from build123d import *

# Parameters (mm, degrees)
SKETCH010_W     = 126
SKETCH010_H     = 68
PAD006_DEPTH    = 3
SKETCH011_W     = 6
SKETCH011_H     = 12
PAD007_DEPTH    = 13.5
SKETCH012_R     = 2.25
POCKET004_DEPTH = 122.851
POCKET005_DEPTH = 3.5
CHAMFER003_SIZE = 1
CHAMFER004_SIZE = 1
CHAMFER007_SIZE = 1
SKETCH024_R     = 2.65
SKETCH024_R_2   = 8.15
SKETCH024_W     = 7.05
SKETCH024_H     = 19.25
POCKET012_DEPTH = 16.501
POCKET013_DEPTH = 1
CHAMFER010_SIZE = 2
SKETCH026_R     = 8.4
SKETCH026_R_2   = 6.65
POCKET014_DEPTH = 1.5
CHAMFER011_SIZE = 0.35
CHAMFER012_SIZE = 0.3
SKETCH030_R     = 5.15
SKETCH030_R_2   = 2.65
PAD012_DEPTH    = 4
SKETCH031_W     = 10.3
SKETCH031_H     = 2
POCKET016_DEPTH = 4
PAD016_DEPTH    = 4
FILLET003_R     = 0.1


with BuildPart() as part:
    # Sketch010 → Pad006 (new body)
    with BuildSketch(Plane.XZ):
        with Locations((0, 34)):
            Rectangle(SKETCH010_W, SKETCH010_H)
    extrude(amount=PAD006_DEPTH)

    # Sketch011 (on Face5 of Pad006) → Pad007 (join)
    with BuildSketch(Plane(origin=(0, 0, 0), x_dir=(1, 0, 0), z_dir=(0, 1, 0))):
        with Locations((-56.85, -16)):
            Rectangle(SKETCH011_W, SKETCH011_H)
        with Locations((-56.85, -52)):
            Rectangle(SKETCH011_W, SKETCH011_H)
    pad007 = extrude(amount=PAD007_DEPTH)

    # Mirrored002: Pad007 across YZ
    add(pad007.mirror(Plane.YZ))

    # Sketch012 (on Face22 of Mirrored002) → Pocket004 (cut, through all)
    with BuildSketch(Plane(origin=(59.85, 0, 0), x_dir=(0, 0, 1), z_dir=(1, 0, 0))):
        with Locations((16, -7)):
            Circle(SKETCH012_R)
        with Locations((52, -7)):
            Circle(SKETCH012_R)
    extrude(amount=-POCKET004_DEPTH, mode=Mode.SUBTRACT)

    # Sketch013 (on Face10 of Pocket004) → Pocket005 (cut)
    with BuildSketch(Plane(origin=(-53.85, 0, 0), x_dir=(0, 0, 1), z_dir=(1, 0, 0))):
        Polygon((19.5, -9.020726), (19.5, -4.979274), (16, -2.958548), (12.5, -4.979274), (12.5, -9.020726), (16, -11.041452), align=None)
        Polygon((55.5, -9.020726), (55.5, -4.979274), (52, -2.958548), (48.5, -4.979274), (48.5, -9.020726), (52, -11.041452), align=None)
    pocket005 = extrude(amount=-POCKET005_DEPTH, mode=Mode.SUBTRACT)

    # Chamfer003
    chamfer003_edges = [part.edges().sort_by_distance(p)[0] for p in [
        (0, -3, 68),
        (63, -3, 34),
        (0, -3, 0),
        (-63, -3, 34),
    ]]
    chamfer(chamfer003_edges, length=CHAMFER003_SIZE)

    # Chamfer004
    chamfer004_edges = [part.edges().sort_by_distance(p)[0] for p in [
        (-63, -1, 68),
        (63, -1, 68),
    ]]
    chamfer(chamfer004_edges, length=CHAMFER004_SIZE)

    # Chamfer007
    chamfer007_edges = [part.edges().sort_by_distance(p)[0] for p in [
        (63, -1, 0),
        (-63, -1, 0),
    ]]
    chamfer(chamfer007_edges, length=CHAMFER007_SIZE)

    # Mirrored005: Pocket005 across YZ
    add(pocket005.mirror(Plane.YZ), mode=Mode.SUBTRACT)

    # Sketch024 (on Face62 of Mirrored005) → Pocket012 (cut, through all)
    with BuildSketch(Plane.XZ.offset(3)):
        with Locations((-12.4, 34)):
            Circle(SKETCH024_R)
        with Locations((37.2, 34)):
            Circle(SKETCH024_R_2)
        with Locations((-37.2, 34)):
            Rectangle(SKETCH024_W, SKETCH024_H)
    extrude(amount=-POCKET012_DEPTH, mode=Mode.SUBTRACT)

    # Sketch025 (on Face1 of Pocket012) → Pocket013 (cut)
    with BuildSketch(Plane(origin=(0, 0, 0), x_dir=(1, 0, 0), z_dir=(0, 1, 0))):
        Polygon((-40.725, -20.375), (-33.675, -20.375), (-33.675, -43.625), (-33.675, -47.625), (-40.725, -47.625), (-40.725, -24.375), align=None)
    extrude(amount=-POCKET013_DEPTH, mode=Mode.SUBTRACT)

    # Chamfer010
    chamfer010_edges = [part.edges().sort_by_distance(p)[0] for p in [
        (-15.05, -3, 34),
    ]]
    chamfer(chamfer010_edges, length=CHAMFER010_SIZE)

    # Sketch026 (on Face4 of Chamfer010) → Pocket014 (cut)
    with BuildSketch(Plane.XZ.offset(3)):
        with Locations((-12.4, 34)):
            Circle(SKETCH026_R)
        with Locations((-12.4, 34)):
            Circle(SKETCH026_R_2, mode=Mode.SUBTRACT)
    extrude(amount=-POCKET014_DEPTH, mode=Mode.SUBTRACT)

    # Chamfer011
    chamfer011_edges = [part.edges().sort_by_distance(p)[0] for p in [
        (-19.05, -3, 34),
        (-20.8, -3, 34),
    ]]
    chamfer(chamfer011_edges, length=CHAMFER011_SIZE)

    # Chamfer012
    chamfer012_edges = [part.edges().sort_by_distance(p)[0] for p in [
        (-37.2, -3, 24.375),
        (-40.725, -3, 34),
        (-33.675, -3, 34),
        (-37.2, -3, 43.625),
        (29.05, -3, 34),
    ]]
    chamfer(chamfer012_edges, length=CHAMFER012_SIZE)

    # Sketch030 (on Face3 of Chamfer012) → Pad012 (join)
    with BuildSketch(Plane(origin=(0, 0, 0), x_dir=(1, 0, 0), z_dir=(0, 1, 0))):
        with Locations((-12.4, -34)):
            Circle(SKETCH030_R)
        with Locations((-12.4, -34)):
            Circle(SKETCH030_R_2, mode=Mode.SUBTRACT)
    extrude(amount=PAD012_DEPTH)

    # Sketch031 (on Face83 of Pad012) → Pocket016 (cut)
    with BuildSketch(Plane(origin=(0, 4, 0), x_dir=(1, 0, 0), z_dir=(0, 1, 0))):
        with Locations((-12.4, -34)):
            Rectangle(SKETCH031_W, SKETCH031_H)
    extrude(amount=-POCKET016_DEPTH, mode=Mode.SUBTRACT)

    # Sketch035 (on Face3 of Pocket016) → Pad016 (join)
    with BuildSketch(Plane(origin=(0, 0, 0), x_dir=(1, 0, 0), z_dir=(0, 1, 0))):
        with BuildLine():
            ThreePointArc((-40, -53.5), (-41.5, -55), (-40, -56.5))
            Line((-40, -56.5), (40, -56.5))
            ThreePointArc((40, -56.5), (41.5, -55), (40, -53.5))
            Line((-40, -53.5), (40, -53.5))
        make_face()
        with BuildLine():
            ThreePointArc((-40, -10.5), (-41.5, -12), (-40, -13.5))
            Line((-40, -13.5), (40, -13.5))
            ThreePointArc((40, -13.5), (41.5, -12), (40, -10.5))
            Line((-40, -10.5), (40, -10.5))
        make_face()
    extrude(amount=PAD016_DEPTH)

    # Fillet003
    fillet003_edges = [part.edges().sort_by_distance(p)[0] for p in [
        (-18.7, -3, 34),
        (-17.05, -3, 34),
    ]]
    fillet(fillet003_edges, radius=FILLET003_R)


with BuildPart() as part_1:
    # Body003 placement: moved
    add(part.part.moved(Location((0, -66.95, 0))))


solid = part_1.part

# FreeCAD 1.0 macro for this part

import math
import FreeCAD as App
import Part
import Sketcher

V = App.Vector
Q = App.Units.Quantity


def edges_at(feature, points):
    """Names of the edges that pass closest to the given points."""
    edges = feature.Shape.Edges
    near = lambda p: min(range(len(edges)), key=lambda i: edges[i].distToShape(Part.Vertex(*p))[0])
    return sorted({f"Edge{near(p) + 1}" for p in points})

doc = App.newDocument("Part")
body = doc.addObject("PartDesign::Body", "Body")

# Sketch on XZ plane
sketch1 = doc.addObject("Sketcher::SketchObject", "Sketch")
body.addObject(sketch1)
sketch1.AttachmentSupport = (doc.XZ_Plane, [""])
sketch1.MapMode = "FlatFace"
sketch1.addGeometry(Part.LineSegment(V(-63, 68, 0), V(-63, 0, 0)), False)
sketch1.addGeometry(Part.LineSegment(V(-63, 0, 0), V(63, 0, 0)), False)
sketch1.addGeometry(Part.LineSegment(V(63, 0, 0), V(63, 68, 0)), False)
sketch1.addGeometry(Part.LineSegment(V(63, 68, 0), V(-63, 68, 0)), False)
sketch1.addConstraint(Sketcher.Constraint("Coincident", 0, 2, 1, 1))
sketch1.addConstraint(Sketcher.Constraint("Coincident", 1, 2, 2, 1))
sketch1.addConstraint(Sketcher.Constraint("Coincident", 2, 2, 3, 1))
sketch1.addConstraint(Sketcher.Constraint("Coincident", 3, 2, 0, 1))
sketch1.addConstraint(Sketcher.Constraint("Vertical", 0))
sketch1.addConstraint(Sketcher.Constraint("Horizontal", 1))
sketch1.addConstraint(Sketcher.Constraint("Vertical", 2))
sketch1.addConstraint(Sketcher.Constraint("Horizontal", 3))
sketch1.addConstraint(Sketcher.Constraint("Symmetric", 0, 2, 1, 2, -1, 1))
sketch1.addConstraint(Sketcher.Constraint("DistanceX", 1, 1, 1, 2, 126.0))
sketch1.addConstraint(Sketcher.Constraint("DistanceY", 0, 2, 0, 1, 68.0))
pad1 = doc.addObject("PartDesign::Pad", "Pad")
body.addObject(pad1)
pad1.Profile = sketch1
pad1.Length = 3

# Sketch on XZ plane
sketch2 = doc.addObject("Sketcher::SketchObject", "Sketch001")
body.addObject(sketch2)
sketch2.AttachmentSupport = (doc.XZ_Plane, [""])
sketch2.MapMode = "FlatFace"
sketch2.addGeometry(Part.LineSegment(V(-60, 10, 0), V(-60, 22, 0)), False)
sketch2.addGeometry(Part.LineSegment(V(-60, 22, 0), V(-54, 22, 0)), False)
sketch2.addGeometry(Part.LineSegment(V(-54, 22, 0), V(-54, 10, 0)), False)
sketch2.addGeometry(Part.LineSegment(V(-54, 10, 0), V(-60, 10, 0)), False)
sketch2.addGeometry(Part.LineSegment(V(-60, 46, 0), V(-60, 58, 0)), False)
sketch2.addGeometry(Part.LineSegment(V(-60, 58, 0), V(-54, 58, 0)), False)
sketch2.addGeometry(Part.LineSegment(V(-54, 58, 0), V(-54, 46, 0)), False)
sketch2.addGeometry(Part.LineSegment(V(-54, 46, 0), V(-60, 46, 0)), False)
sketch2.addConstraint(Sketcher.Constraint("Coincident", 0, 2, 1, 1))
sketch2.addConstraint(Sketcher.Constraint("Coincident", 1, 2, 2, 1))
sketch2.addConstraint(Sketcher.Constraint("Coincident", 2, 2, 3, 1))
sketch2.addConstraint(Sketcher.Constraint("Coincident", 3, 2, 0, 1))
sketch2.addConstraint(Sketcher.Constraint("Coincident", 4, 2, 5, 1))
sketch2.addConstraint(Sketcher.Constraint("Coincident", 5, 2, 6, 1))
sketch2.addConstraint(Sketcher.Constraint("Coincident", 6, 2, 7, 1))
sketch2.addConstraint(Sketcher.Constraint("Coincident", 7, 2, 4, 1))
sketch2.addConstraint(Sketcher.Constraint("Vertical", 0))
sketch2.addConstraint(Sketcher.Constraint("Horizontal", 1))
sketch2.addConstraint(Sketcher.Constraint("Vertical", 2))
sketch2.addConstraint(Sketcher.Constraint("Horizontal", 3))
sketch2.addConstraint(Sketcher.Constraint("Vertical", 4))
sketch2.addConstraint(Sketcher.Constraint("Horizontal", 5))
sketch2.addConstraint(Sketcher.Constraint("Vertical", 6))
sketch2.addConstraint(Sketcher.Constraint("Horizontal", 7))
sketch2.addConstraint(Sketcher.Constraint("Vertical", 3, 2, 4, 2))
sketch2.addConstraint(Sketcher.Constraint("Vertical", 2, 2, 5, 2))
sketch2.addConstraint(Sketcher.Constraint("Equal", 2, 4))
sketch2.addConstraint(Sketcher.Constraint("DistanceX", 1, 1, 1, 2, 6.0))
sketch2.addConstraint(Sketcher.Constraint("DistanceY", 0, 1, 0, 2, 12.0))
sketch2.addConstraint(Sketcher.Constraint("DistanceY", -1, 1, 0, 2, 22.0))
sketch2.addConstraint(Sketcher.Constraint("DistanceY", -1, 1, 4, 2, 58.0))
sketch2.addConstraint(Sketcher.Constraint("DistanceX", 0, 2, -1, 1, 59.85))
pad2 = doc.addObject("PartDesign::Pad", "Pad001")
body.addObject(pad2)
pad2.Profile = sketch2
pad2.Length = 13.5
pad2.Reversed = True
doc.recompute()

mirrored = doc.addObject("PartDesign::Mirrored", "Mirrored")
body.addObject(mirrored)
mirrored.Originals = [pad2]
mirrored.MirrorPlane = (doc.YZ_Plane, [""])
body.Tip = mirrored

# Sketch on YZ plane
sketch3 = doc.addObject("Sketcher::SketchObject", "Sketch002")
body.addObject(sketch3)
sketch3.AttachmentSupport = (doc.YZ_Plane, [""])
sketch3.MapMode = "FlatFace"
sketch3.AttachmentOffset = App.Placement(V(0, 0, 59.85), App.Rotation())
sketch3.addGeometry(Part.Circle(V(7, 16, 0), V(0, 0, 1), 2.2), False)
sketch3.addGeometry(Part.Circle(V(7, 52, 0), V(0, 0, 1), 2.2), False)
sketch3.addConstraint(Sketcher.Constraint("Equal", 0, 1))
sketch3.addConstraint(Sketcher.Constraint("Vertical", 0, 3, 1, 3))
sketch3.addConstraint(Sketcher.Constraint("Diameter", 0, 4.5))
sketch3.addConstraint(Sketcher.Constraint("DistanceX", -1, 1, 0, 3, 7.0))
sketch3.addConstraint(Sketcher.Constraint("DistanceY", -1, 1, 0, 3, 16.0))
sketch3.addConstraint(Sketcher.Constraint("DistanceY", -1, 1, 1, 3, 52.0))
pocket1 = doc.addObject("PartDesign::Pocket", "Pocket")
body.addObject(pocket1)
pocket1.Profile = sketch3
pocket1.Type = "ThroughAll"

# Sketch on YZ plane
sketch4 = doc.addObject("Sketcher::SketchObject", "Sketch003")
body.addObject(sketch4)
sketch4.AttachmentSupport = (doc.YZ_Plane, [""])
sketch4.MapMode = "FlatFace"
sketch4.AttachmentOffset = App.Placement(V(0, 0, -53.85), App.Rotation())
sketch4.addGeometry(Part.LineSegment(V(9, 19.5, 0), V(5, 19.5, 0)), False)
sketch4.addGeometry(Part.LineSegment(V(5, 19.5, 0), V(3, 16, 0)), False)
sketch4.addGeometry(Part.LineSegment(V(3, 16, 0), V(5, 12.5, 0)), False)
sketch4.addGeometry(Part.LineSegment(V(5, 12.5, 0), V(9, 12.5, 0)), False)
sketch4.addGeometry(Part.LineSegment(V(9, 12.5, 0), V(11, 16, 0)), False)
sketch4.addGeometry(Part.LineSegment(V(11, 16, 0), V(9, 19.5, 0)), False)
sketch4.addGeometry(Part.LineSegment(V(9, 55.5, 0), V(5, 55.5, 0)), False)
sketch4.addGeometry(Part.LineSegment(V(5, 55.5, 0), V(3, 52, 0)), False)
sketch4.addGeometry(Part.LineSegment(V(3, 52, 0), V(5, 48.5, 0)), False)
sketch4.addGeometry(Part.LineSegment(V(5, 48.5, 0), V(9, 48.5, 0)), False)
sketch4.addGeometry(Part.LineSegment(V(9, 48.5, 0), V(11, 52, 0)), False)
sketch4.addGeometry(Part.LineSegment(V(11, 52, 0), V(9, 55.5, 0)), False)
sketch4.addConstraint(Sketcher.Constraint("Coincident", 0, 2, 1, 1))
sketch4.addConstraint(Sketcher.Constraint("Coincident", 1, 2, 2, 1))
sketch4.addConstraint(Sketcher.Constraint("Coincident", 2, 2, 3, 1))
sketch4.addConstraint(Sketcher.Constraint("Coincident", 3, 2, 4, 1))
sketch4.addConstraint(Sketcher.Constraint("Coincident", 4, 2, 5, 1))
sketch4.addConstraint(Sketcher.Constraint("Coincident", 5, 2, 0, 1))
sketch4.addConstraint(Sketcher.Constraint("Coincident", 6, 2, 7, 1))
sketch4.addConstraint(Sketcher.Constraint("Coincident", 7, 2, 8, 1))
sketch4.addConstraint(Sketcher.Constraint("Coincident", 8, 2, 9, 1))
sketch4.addConstraint(Sketcher.Constraint("Coincident", 9, 2, 10, 1))
sketch4.addConstraint(Sketcher.Constraint("Coincident", 10, 2, 11, 1))
sketch4.addConstraint(Sketcher.Constraint("Coincident", 11, 2, 6, 1))
sketch4.addConstraint(Sketcher.Constraint("Horizontal", 0))
sketch4.addConstraint(Sketcher.Constraint("Horizontal", 3))
sketch4.addConstraint(Sketcher.Constraint("Horizontal", 6))
sketch4.addConstraint(Sketcher.Constraint("Horizontal", 9))
sketch4.addConstraint(Sketcher.Constraint("Parallel", 1, 4))
sketch4.addConstraint(Sketcher.Constraint("Parallel", 2, 5))
sketch4.addConstraint(Sketcher.Constraint("Parallel", 4, 7))
sketch4.addConstraint(Sketcher.Constraint("Parallel", 5, 8))
sketch4.addConstraint(Sketcher.Constraint("Parallel", 7, 10))
sketch4.addConstraint(Sketcher.Constraint("Parallel", 8, 11))
sketch4.addConstraint(Sketcher.Constraint("Horizontal", 1, 2, 4, 2))
sketch4.addConstraint(Sketcher.Constraint("Horizontal", 7, 2, 10, 2))
sketch4.addConstraint(Sketcher.Constraint("Vertical", 0, 2, 2, 2))
sketch4.addConstraint(Sketcher.Constraint("Vertical", 3, 2, 5, 2))
sketch4.addConstraint(Sketcher.Constraint("Vertical", 2, 2, 6, 2))
sketch4.addConstraint(Sketcher.Constraint("Vertical", 1, 2, 7, 2))
sketch4.addConstraint(Sketcher.Constraint("Vertical", 6, 2, 8, 2))
sketch4.addConstraint(Sketcher.Constraint("Vertical", 5, 2, 9, 2))
sketch4.addConstraint(Sketcher.Constraint("Angle", 1, Q("-120.000001 deg")))
sketch4.addConstraint(Sketcher.Constraint("DistanceY", -1, 1, 1, 2, 16.0))
sketch4.addConstraint(Sketcher.Constraint("DistanceY", -1, 1, 7, 2, 52.0))
sketch4.addConstraint(Sketcher.Constraint("DistanceY", 2, 2, 0, 2, 7.0))
sketch4.addConstraint(Sketcher.Constraint("DistanceX", 0, 2, 0, 1, 4.041452))
sketch4.addConstraint(Sketcher.Constraint("DistanceX", -1, 1, 1, 2, 2.958548))
pocket2 = doc.addObject("PartDesign::Pocket", "Pocket001")
body.addObject(pocket2)
pocket2.Profile = sketch4
pocket2.Length = 3.5
doc.recompute()

chamfer = doc.addObject("PartDesign::Chamfer", "Chamfer")
body.addObject(chamfer)
chamfer.Base = (pocket2, edges_at(pocket2, [
    (0, -3, 68),
    (63, -3, 34),
    (0, -3, 0),
    (-63, -3, 34),
]))
chamfer.Size = 1
doc.recompute()

chamfer2 = doc.addObject("PartDesign::Chamfer", "Chamfer001")
body.addObject(chamfer2)
chamfer2.Base = (chamfer, edges_at(chamfer, [(-63, -1, 68), (63, -1, 68)]))
chamfer2.Size = 1
doc.recompute()

chamfer3 = doc.addObject("PartDesign::Chamfer", "Chamfer002")
body.addObject(chamfer3)
chamfer3.Base = (chamfer2, edges_at(chamfer2, [(63, -1, 0), (-63, -1, 0)]))
chamfer3.Size = 1
doc.recompute()

mirrored2 = doc.addObject("PartDesign::Mirrored", "Mirrored001")
body.addObject(mirrored2)
mirrored2.Originals = [pocket2]
mirrored2.MirrorPlane = (doc.YZ_Plane, [""])
body.Tip = mirrored2

# Sketch on XZ plane
sketch5 = doc.addObject("Sketcher::SketchObject", "Sketch004")
body.addObject(sketch5)
sketch5.AttachmentSupport = (doc.XZ_Plane, [""])
sketch5.MapMode = "FlatFace"
sketch5.AttachmentOffset = App.Placement(V(0, 0, 3), App.Rotation())
sketch5.addGeometry(Part.Circle(V(-12.4, 34, 0), V(0, 0, 1), 2.6), False)
sketch5.addGeometry(Part.Circle(V(37.2, 34, 0), V(0, 0, 1), 8.2), False)
sketch5.addGeometry(Part.LineSegment(V(-40.7, 43.6, 0), V(-40.7, 24.4, 0)), False)
sketch5.addGeometry(Part.LineSegment(V(-40.7, 24.4, 0), V(-33.7, 24.4, 0)), False)
sketch5.addGeometry(Part.LineSegment(V(-33.7, 24.4, 0), V(-33.7, 43.6, 0)), False)
sketch5.addGeometry(Part.LineSegment(V(-33.7, 43.6, 0), V(-40.7, 43.6, 0)), False)
sketch5.addConstraint(Sketcher.Constraint("Coincident", 2, 2, 3, 1))
sketch5.addConstraint(Sketcher.Constraint("Coincident", 3, 2, 4, 1))
sketch5.addConstraint(Sketcher.Constraint("Coincident", 4, 2, 5, 1))
sketch5.addConstraint(Sketcher.Constraint("Coincident", 5, 2, 2, 1))
sketch5.addConstraint(Sketcher.Constraint("Vertical", 2))
sketch5.addConstraint(Sketcher.Constraint("Horizontal", 3))
sketch5.addConstraint(Sketcher.Constraint("Vertical", 4))
sketch5.addConstraint(Sketcher.Constraint("Horizontal", 5))
sketch5.addConstraint(Sketcher.Constraint("Horizontal", 0, 3, 1, 3))
sketch5.addConstraint(Sketcher.Constraint("Diameter", 0, 5.3))
sketch5.addConstraint(Sketcher.Constraint("Diameter", 1, 16.3))
sketch5.addConstraint(Sketcher.Constraint("DistanceY", -1, 1, 0, 3, 34.0))
sketch5.addConstraint(Sketcher.Constraint("DistanceX", 3, 1, 3, 2, 7.05))
sketch5.addConstraint(Sketcher.Constraint("DistanceY", 2, 2, 2, 1, 19.25))
sketch5.addConstraint(Sketcher.Constraint("DistanceX", 0, 3, -1, 1, 12.4))
sketch5.addConstraint(Sketcher.Constraint("DistanceX", -1, 1, 1, 3, 37.2))
sketch5.addConstraint(Sketcher.Constraint("DistanceX", 2, 2, -1, 1, 40.725))
sketch5.addConstraint(Sketcher.Constraint("DistanceY", -1, 1, 2, 2, 24.375))
pocket3 = doc.addObject("PartDesign::Pocket", "Pocket002")
body.addObject(pocket3)
pocket3.Profile = sketch5
pocket3.Type = "ThroughAll"

# Sketch on XZ plane
sketch6 = doc.addObject("Sketcher::SketchObject", "Sketch005")
body.addObject(sketch6)
sketch6.AttachmentSupport = (doc.XZ_Plane, [""])
sketch6.MapMode = "FlatFace"
sketch6.addGeometry(Part.LineSegment(V(-34, 20, 0), V(-41, 20, 0)), False)
sketch6.addGeometry(Part.LineSegment(V(-41, 20, 0), V(-41, 48, 0)), False)
sketch6.addGeometry(Part.LineSegment(V(-41, 48, 0), V(-34, 48, 0)), False)
sketch6.addGeometry(Part.LineSegment(V(-34, 48, 0), V(-34, 20, 0)), False)
sketch6.addConstraint(Sketcher.Constraint("Coincident", 0, 2, 1, 1))
sketch6.addConstraint(Sketcher.Constraint("Coincident", 1, 2, 2, 1))
sketch6.addConstraint(Sketcher.Constraint("Coincident", 2, 2, 3, 1))
sketch6.addConstraint(Sketcher.Constraint("Coincident", 3, 2, 0, 1))
sketch6.addConstraint(Sketcher.Constraint("Horizontal", 0))
sketch6.addConstraint(Sketcher.Constraint("Vertical", 1))
sketch6.addConstraint(Sketcher.Constraint("Horizontal", 2))
sketch6.addConstraint(Sketcher.Constraint("Vertical", 3))
sketch6.addConstraint(Sketcher.Constraint("DistanceX", 0, 2, 0, 1, 7.05))
sketch6.addConstraint(Sketcher.Constraint("DistanceY", 1, 1, 1, 2, 27.25))
sketch6.addConstraint(Sketcher.Constraint("DistanceX", 0, 2, -1, 1, 40.725))
sketch6.addConstraint(Sketcher.Constraint("DistanceY", -1, 1, 0, 2, 20.375))
pocket4 = doc.addObject("PartDesign::Pocket", "Pocket003")
body.addObject(pocket4)
pocket4.Profile = sketch6
pocket4.Length = 1
pocket4.Reversed = True
doc.recompute()

chamfer4 = doc.addObject("PartDesign::Chamfer", "Chamfer003")
body.addObject(chamfer4)
chamfer4.Base = (pocket4, edges_at(pocket4, [(-15.05, -3, 34)]))
chamfer4.Size = 2

# Sketch on XZ plane
sketch7 = doc.addObject("Sketcher::SketchObject", "Sketch006")
body.addObject(sketch7)
sketch7.AttachmentSupport = (doc.XZ_Plane, [""])
sketch7.MapMode = "FlatFace"
sketch7.AttachmentOffset = App.Placement(V(0, 0, 3), App.Rotation())
sketch7.addGeometry(Part.Circle(V(-12, 34, 0), V(0, 0, 1), 8), False)
sketch7.addGeometry(Part.Circle(V(-12, 34, 0), V(0, 0, 1), 7), False)
sketch7.addConstraint(Sketcher.Constraint("Coincident", 1, 3, 0, 3))
sketch7.addConstraint(Sketcher.Constraint("Diameter", 0, 16.8))
sketch7.addConstraint(Sketcher.Constraint("Diameter", 1, 13.3))
sketch7.addConstraint(Sketcher.Constraint("DistanceY", -1, 1, 0, 3, 34.0))
sketch7.addConstraint(Sketcher.Constraint("DistanceX", 0, 3, -1, 1, 12.4))
pocket5 = doc.addObject("PartDesign::Pocket", "Pocket004")
body.addObject(pocket5)
pocket5.Profile = sketch7
pocket5.Length = 1.5
doc.recompute()

chamfer5 = doc.addObject("PartDesign::Chamfer", "Chamfer004")
body.addObject(chamfer5)
chamfer5.Base = (pocket5, edges_at(pocket5, [(-19.05, -3, 34), (-20.8, -3, 34)]))
chamfer5.Size = 0.35
doc.recompute()

chamfer6 = doc.addObject("PartDesign::Chamfer", "Chamfer005")
body.addObject(chamfer6)
chamfer6.Base = (chamfer5, edges_at(chamfer5, [
    (-37.2, -3, 24.375),
    (-40.725, -3, 34),
    (-33.675, -3, 34),
    (-37.2, -3, 43.625),
    (29.05, -3, 34),
]))
chamfer6.Size = 0.3

# Sketch on XZ plane
sketch8 = doc.addObject("Sketcher::SketchObject", "Sketch007")
body.addObject(sketch8)
sketch8.AttachmentSupport = (doc.XZ_Plane, [""])
sketch8.MapMode = "FlatFace"
sketch8.addGeometry(Part.Circle(V(-12.4, 34, 0), V(0, 0, 1), 5.2), False)
sketch8.addGeometry(Part.Circle(V(-12.4, 34, 0), V(0, 0, 1), 2.6), False)
sketch8.addConstraint(Sketcher.Constraint("Coincident", 1, 3, 0, 3))
sketch8.addConstraint(Sketcher.Constraint("Diameter", 0, 10.3))
sketch8.addConstraint(Sketcher.Constraint("Diameter", 1, 5.3))
sketch8.addConstraint(Sketcher.Constraint("DistanceY", -1, 1, 0, 3, 34.0))
sketch8.addConstraint(Sketcher.Constraint("DistanceX", 0, 3, -1, 1, 12.4))
pad3 = doc.addObject("PartDesign::Pad", "Pad002")
body.addObject(pad3)
pad3.Profile = sketch8
pad3.Length = 4
pad3.Reversed = True

# Sketch on XZ plane
sketch9 = doc.addObject("Sketcher::SketchObject", "Sketch008")
body.addObject(sketch9)
sketch9.AttachmentSupport = (doc.XZ_Plane, [""])
sketch9.MapMode = "FlatFace"
sketch9.AttachmentOffset = App.Placement(V(0, 0, -4), App.Rotation())
sketch9.addGeometry(Part.LineSegment(V(-17.6, 33, 0), V(-17.6, 35, 0)), False)
sketch9.addGeometry(Part.LineSegment(V(-17.6, 35, 0), V(-7.2, 35, 0)), False)
sketch9.addGeometry(Part.LineSegment(V(-7.2, 35, 0), V(-7.2, 33, 0)), False)
sketch9.addGeometry(Part.LineSegment(V(-7.2, 33, 0), V(-17.6, 33, 0)), False)
sketch9.addConstraint(Sketcher.Constraint("Coincident", 0, 2, 1, 1))
sketch9.addConstraint(Sketcher.Constraint("Coincident", 1, 2, 2, 1))
sketch9.addConstraint(Sketcher.Constraint("Coincident", 2, 2, 3, 1))
sketch9.addConstraint(Sketcher.Constraint("Coincident", 3, 2, 0, 1))
sketch9.addConstraint(Sketcher.Constraint("Vertical", 0))
sketch9.addConstraint(Sketcher.Constraint("Horizontal", 1))
sketch9.addConstraint(Sketcher.Constraint("Vertical", 2))
sketch9.addConstraint(Sketcher.Constraint("Horizontal", 3))
sketch9.addConstraint(Sketcher.Constraint("DistanceY", 0, 1, 0, 2, 2.0))
sketch9.addConstraint(Sketcher.Constraint("DistanceX", 1, 1, 1, 2, 10.3))
sketch9.addConstraint(Sketcher.Constraint("DistanceY", -1, 1, 0, 2, 35.0))
sketch9.addConstraint(Sketcher.Constraint("DistanceX", 0, 2, -1, 1, 17.55))
pocket6 = doc.addObject("PartDesign::Pocket", "Pocket005")
body.addObject(pocket6)
pocket6.Profile = sketch9
pocket6.Length = 4
pocket6.Reversed = True

# Sketch on XZ plane
sketch10 = doc.addObject("Sketcher::SketchObject", "Sketch009")
body.addObject(sketch10)
sketch10.AttachmentSupport = (doc.XZ_Plane, [""])
sketch10.MapMode = "FlatFace"
sketch10.addGeometry(Part.ArcOfCircle(Part.Circle(V(-40, 55, 0), V(0, 0, 1), 1.5), math.radians(90), math.radians(270)), False)
sketch10.addGeometry(Part.LineSegment(V(-40, 56.5, 0), V(40, 56.5, 0)), False)
sketch10.addGeometry(Part.ArcOfCircle(Part.Circle(V(40, 55, 0), V(0, 0, 1), 1.5), math.radians(-90), math.radians(90)), False)
sketch10.addGeometry(Part.LineSegment(V(40, 53.5, 0), V(-40, 53.5, 0)), False)
sketch10.addGeometry(Part.ArcOfCircle(Part.Circle(V(-40, 12, 0), V(0, 0, 1), 1.5), math.radians(90), math.radians(270)), False)
sketch10.addGeometry(Part.LineSegment(V(-40, 13.5, 0), V(40, 13.5, 0)), False)
sketch10.addGeometry(Part.ArcOfCircle(Part.Circle(V(40, 12, 0), V(0, 0, 1), 1.5), math.radians(-90), math.radians(90)), False)
sketch10.addGeometry(Part.LineSegment(V(40, 10.5, 0), V(-40, 10.5, 0)), False)
sketch10.addConstraint(Sketcher.Constraint("Tangent", 0, 1, 1, 1))
sketch10.addConstraint(Sketcher.Constraint("Tangent", 1, 2, 2, 2))
sketch10.addConstraint(Sketcher.Constraint("Tangent", 2, 1, 3, 1))
sketch10.addConstraint(Sketcher.Constraint("Tangent", 3, 2, 0, 2))
sketch10.addConstraint(Sketcher.Constraint("Tangent", 4, 1, 5, 1))
sketch10.addConstraint(Sketcher.Constraint("Tangent", 5, 2, 6, 2))
sketch10.addConstraint(Sketcher.Constraint("Tangent", 6, 1, 7, 1))
sketch10.addConstraint(Sketcher.Constraint("Tangent", 7, 2, 4, 2))
sketch10.addConstraint(Sketcher.Constraint("Horizontal", 1))
sketch10.addConstraint(Sketcher.Constraint("Horizontal", 3))
sketch10.addConstraint(Sketcher.Constraint("Horizontal", 5))
sketch10.addConstraint(Sketcher.Constraint("Horizontal", 7))
sketch10.addConstraint(Sketcher.Constraint("Equal", 2, 4))
sketch10.addConstraint(Sketcher.Constraint("Vertical", 0, 3, 4, 3))
sketch10.addConstraint(Sketcher.Constraint("Vertical", 2, 3, 6, 3))
sketch10.addConstraint(Sketcher.Constraint("Radius", 0, 1.5))
sketch10.addConstraint(Sketcher.Constraint("DistanceX", 1, 1, 1, 2, 80.0))
sketch10.addConstraint(Sketcher.Constraint("DistanceX", 0, 3, -1, 1, 40.0))
sketch10.addConstraint(Sketcher.Constraint("DistanceY", -1, 1, 0, 3, 55.0))
sketch10.addConstraint(Sketcher.Constraint("DistanceY", -1, 1, 4, 3, 12.0))
pad4 = doc.addObject("PartDesign::Pad", "Pad003")
body.addObject(pad4)
pad4.Profile = sketch10
pad4.Length = 4
pad4.Reversed = True
doc.recompute()

fillet = doc.addObject("PartDesign::Fillet", "Fillet")
body.addObject(fillet)
fillet.Base = (pad4, edges_at(pad4, [(-18.7, -3, 34), (-17.05, -3, 34)]))
fillet.Radius = 0.1
body2 = doc.addObject("PartDesign::Body", "Body001")
doc.recompute()

body.Placement = App.Placement(V(0, -66.95, 0), App.Rotation(V(0, 0, 1), 0))
boolean = doc.addObject("PartDesign::Boolean", "Boolean")
body2.addObject(boolean)
boolean.Type = "Fuse"
boolean.addObjects([body])

doc.recompute()
